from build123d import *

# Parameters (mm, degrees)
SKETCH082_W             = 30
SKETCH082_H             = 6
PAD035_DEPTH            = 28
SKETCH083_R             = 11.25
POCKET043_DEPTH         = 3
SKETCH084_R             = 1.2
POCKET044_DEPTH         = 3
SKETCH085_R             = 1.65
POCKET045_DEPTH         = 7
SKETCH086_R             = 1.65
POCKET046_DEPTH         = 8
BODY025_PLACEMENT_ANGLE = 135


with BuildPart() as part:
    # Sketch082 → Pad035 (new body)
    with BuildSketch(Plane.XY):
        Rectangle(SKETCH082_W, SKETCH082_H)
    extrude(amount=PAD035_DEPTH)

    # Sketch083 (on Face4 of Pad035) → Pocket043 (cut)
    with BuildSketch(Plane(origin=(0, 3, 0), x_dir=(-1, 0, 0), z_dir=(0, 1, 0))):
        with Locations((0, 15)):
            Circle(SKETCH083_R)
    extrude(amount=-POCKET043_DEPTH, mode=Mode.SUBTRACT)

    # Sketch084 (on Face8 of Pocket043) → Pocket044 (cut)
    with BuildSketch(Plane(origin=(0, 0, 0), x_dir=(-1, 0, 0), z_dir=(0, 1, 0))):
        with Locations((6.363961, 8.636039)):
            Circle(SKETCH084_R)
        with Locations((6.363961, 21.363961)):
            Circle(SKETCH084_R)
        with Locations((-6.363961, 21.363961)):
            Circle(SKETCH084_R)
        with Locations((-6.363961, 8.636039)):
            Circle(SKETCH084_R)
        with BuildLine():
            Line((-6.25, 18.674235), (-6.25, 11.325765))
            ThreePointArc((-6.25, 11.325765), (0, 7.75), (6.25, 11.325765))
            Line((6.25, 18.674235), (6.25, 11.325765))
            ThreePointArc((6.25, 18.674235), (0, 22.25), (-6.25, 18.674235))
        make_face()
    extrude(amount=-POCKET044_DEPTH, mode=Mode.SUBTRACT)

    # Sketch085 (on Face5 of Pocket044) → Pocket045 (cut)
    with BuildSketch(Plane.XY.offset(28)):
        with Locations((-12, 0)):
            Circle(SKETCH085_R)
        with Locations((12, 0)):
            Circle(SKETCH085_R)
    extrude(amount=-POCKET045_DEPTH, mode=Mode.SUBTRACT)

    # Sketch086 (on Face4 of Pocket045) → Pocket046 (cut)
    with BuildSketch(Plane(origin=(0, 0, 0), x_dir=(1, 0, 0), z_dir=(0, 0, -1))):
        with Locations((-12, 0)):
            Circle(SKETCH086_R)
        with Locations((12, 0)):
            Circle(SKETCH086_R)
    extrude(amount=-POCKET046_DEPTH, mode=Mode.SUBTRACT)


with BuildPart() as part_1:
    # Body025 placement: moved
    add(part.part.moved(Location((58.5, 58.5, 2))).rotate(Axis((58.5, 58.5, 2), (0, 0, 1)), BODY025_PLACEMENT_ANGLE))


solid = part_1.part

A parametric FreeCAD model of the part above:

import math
import FreeCAD as App
import Part
import Sketcher

V = App.Vector

doc = App.newDocument("Part")
params = doc.addObject("Spreadsheet::Sheet", "Params")
for row, (alias, value) in enumerate([
    ("sketch1_width", "30 mm"),
    ("sketch1_height", "6 mm"),
    ("pad1_length", "28 mm"),
    ("sketch2_diameter", "22.5 mm"),
    ("pocket1_length", "3 mm"),
    ("sketch3_diameter", "2.4 mm"),
    ("sketch3_radius", "7.25 mm"),
    ("pocket2_length", "3 mm"),
    ("sketch4_diameter", "3.3 mm"),
    ("pocket3_length", "7 mm"),
    ("sketch5_diameter", "3.3 mm"),
    ("pocket4_length", "8 mm"),
], start=1):
    params.set(f"A{row}", alias)
    params.set(f"B{row}", "=" + value)
    params.setAlias(f"B{row}", alias)

body = doc.addObject("PartDesign::Body", "Body")

sketch1 = body.newObject("Sketcher::SketchObject", "Sketch")
sketch1.AttachmentSupport = (doc.getObject("XY_Plane"), [""])
sketch1.MapMode = "FlatFace"
sketch1.addGeometry([
    Part.LineSegment(V(-15, 3, 0), V(-15, -3, 0)),
    Part.LineSegment(V(-15, -3, 0), V(15, -3, 0)),
    Part.LineSegment(V(15, -3, 0), V(15, 3, 0)),
    Part.LineSegment(V(15, 3, 0), V(-15, 3, 0)),
], False)
sketch1.addConstraint([
    Sketcher.Constraint("Coincident", 0, 2, 1, 1),
    Sketcher.Constraint("Coincident", 1, 2, 2, 1),
    Sketcher.Constraint("Coincident", 2, 2, 3, 1),
    Sketcher.Constraint("Coincident", 3, 2, 0, 1),
    Sketcher.Constraint("Vertical", 0),
    Sketcher.Constraint("Horizontal", 1),
    Sketcher.Constraint("Vertical", 2),
    Sketcher.Constraint("Horizontal", 3),
    Sketcher.Constraint("Symmetric", 0, 2, 2, 2, -1, 1),
    Sketcher.Constraint("DistanceX", 1, 1, 1, 2, 30.0),
    Sketcher.Constraint("DistanceY", 0, 2, 0, 1, 6.0),
])
sketch1.setExpression("Constraints[9]", "Params.sketch1_width")
sketch1.setExpression("Constraints[10]", "Params.sketch1_height")
pad1 = body.newObject("PartDesign::Pad", "Pad")
pad1.Profile = sketch1
pad1.setExpression("Length", "Params.pad1_length")

sketch2 = body.newObject("Sketcher::SketchObject", "Sketch001")
sketch2.AttachmentSupport = (doc.getObject("XZ_Plane"), [""])
sketch2.MapMode = "FlatFace"
sketch2.AttachmentOffset = App.Placement(V(0, 0, -3), App.Rotation())
sketch2.addGeometry(Part.Circle(V(0, 15, 0), V(0, 0, 1), 11), False)
sketch2.addConstraint([
    Sketcher.Constraint("PointOnObject", 0, 3, -2),
    Sketcher.Constraint("Diameter", 0, 22.5),
    Sketcher.Constraint("DistanceY", -1, 1, 0, 3, 15.0),
])
sketch2.setExpression("Constraints[1]", "Params.sketch2_diameter")
pocket1 = body.newObject("PartDesign::Pocket", "Pocket")
pocket1.Profile = sketch2
pocket1.setExpression("Length", "Params.pocket1_length")
pocket1.Reversed = True

sketch3 = body.newObject("Sketcher::SketchObject", "Sketch002")
sketch3.AttachmentSupport = (doc.getObject("XZ_Plane"), [""])
sketch3.MapMode = "FlatFace"
sketch3.addGeometry([
    Part.Circle(V(-6.4, 8.6, 0), V(0, 0, 1), 1.2),
    Part.Circle(V(-6.4, 21.4, 0), V(0, 0, 1), 1.2),
    Part.Circle(V(6.4, 21.4, 0), V(0, 0, 1), 1.2),
    Part.Circle(V(6.4, 8.6, 0), V(0, 0, 1), 1.2),
    Part.LineSegment(V(6.2, 18.7, 0), V(6.2, 11.3, 0)),
    Part.ArcOfCircle(Part.Circle(V(0, 15, 0), V(0, 0, 1), 7.3), math.radians(-150), math.radians(-30)),
    Part.LineSegment(V(-6.2, 11.3, 0), V(-6.2, 18.7, 0)),
    Part.ArcOfCircle(Part.Circle(V(0, 15, 0), V(0, 0, 1), 7.3), math.radians(30), math.radians(150)),
], False)
sketch3.addConstraint([
    Sketcher.Constraint("Coincident", 4, 2, 5, 2),
    Sketcher.Constraint("Coincident", 5, 1, 6, 1),
    Sketcher.Constraint("Coincident", 6, 2, 7, 2),
    Sketcher.Constraint("Coincident", 7, 1, 4, 1),
    Sketcher.Constraint("Vertical", 4),
    Sketcher.Constraint("Vertical", 6),
    Sketcher.Constraint("Coincident", 7, 3, 5, 3),
    Sketcher.Constraint("Equal", 0, 1),
    Sketcher.Constraint("Equal", 1, 2),
    Sketcher.Constraint("Equal", 2, 3),
    Sketcher.Constraint("Equal", 5, 7),
    Sketcher.Constraint("Symmetric", 1, 3, 2, 3, -2),
    Sketcher.Constraint("Symmetric", 0, 3, 3, 3, -2),
    Sketcher.Constraint("Symmetric", 4, 2, 5, 1, -2),
    Sketcher.Constraint("Vertical", 0, 3, 1, 3),
    Sketcher.Constraint("Diameter", 0, 2.4),
    Sketcher.Constraint("Radius", 5, 7.25),
    Sketcher.Constraint("DistanceY", -1, 1, 5, 3, 15.0),
    Sketcher.Constraint("DistanceX", 5, 1, 4, 2, 12.5),
    Sketcher.Constraint("DistanceX", 0, 3, -1, 1, 6.363961),
    Sketcher.Constraint("DistanceY", -1, 1, 0, 3, 8.636039),
    Sketcher.Constraint("DistanceY", -1, 1, 1, 3, 21.363961),
])
sketch3.setExpression("Constraints[15]", "Params.sketch3_diameter")
sketch3.setExpression("Constraints[16]", "Params.sketch3_radius")
pocket2 = body.newObject("PartDesign::Pocket", "Pocket001")
pocket2.Profile = sketch3
pocket2.setExpression("Length", "Params.pocket2_length")
pocket2.Reversed = True

sketch4 = body.newObject("Sketcher::SketchObject", "Sketch003")
sketch4.AttachmentSupport = (doc.getObject("XY_Plane"), [""])
sketch4.MapMode = "FlatFace"
sketch4.AttachmentOffset = App.Placement(V(0, 0, 28), App.Rotation())
sketch4.addGeometry([
    Part.Circle(V(-12, 0, 0), V(0, 0, 1), 1.6),
    Part.Circle(V(12, 0, 0), V(0, 0, 1), 1.6),
], False)
sketch4.addConstraint([
    Sketcher.Constraint("Equal", 0, 1),
    Sketcher.Constraint("Symmetric", 0, 3, 1, 3, -1, 1),
    Sketcher.Constraint("PointOnObject", 0, 3, -1),
    Sketcher.Constraint("Diameter", 0, 3.3),
    Sketcher.Constraint("DistanceX", 0, 3, -1, 1, 12.0),
])
sketch4.setExpression("Constraints[3]", "Params.sketch4_diameter")
pocket3 = body.newObject("PartDesign::Pocket", "Pocket002")
pocket3.Profile = sketch4
pocket3.setExpression("Length", "Params.pocket3_length")

sketch5 = body.newObject("Sketcher::SketchObject", "Sketch004")
sketch5.AttachmentSupport = (doc.getObject("XY_Plane"), [""])
sketch5.MapMode = "FlatFace"
sketch5.addGeometry([
    Part.Circle(V(-12, 0, 0), V(0, 0, 1), 1.6),
    Part.Circle(V(12, 0, 0), V(0, 0, 1), 1.6),
], False)
sketch5.addConstraint([
    Sketcher.Constraint("Equal", 0, 1),
    Sketcher.Constraint("Symmetric", 0, 3, 1, 3, -1, 1),
    Sketcher.Constraint("PointOnObject", 0, 3, -1),
    Sketcher.Constraint("Diameter", 0, 3.3),
    Sketcher.Constraint("DistanceX", 0, 3, -1, 1, 12.0),
])
sketch5.setExpression("Constraints[3]", "Params.sketch5_diameter")
pocket4 = body.newObject("PartDesign::Pocket", "Pocket003")
pocket4.Profile = sketch5
pocket4.setExpression("Length", "Params.pocket4_length")
pocket4.Reversed = True
body2 = doc.addObject("PartDesign::Body", "Body001")
doc.recompute()

body.Placement = App.Placement(V(58.5, 58.5, 2), App.Rotation(V(0, 0, 1), 135))
boolean = body2.newObject("PartDesign::Boolean", "Boolean")
boolean.Type = "Fuse"
boolean.addObjects([body])

doc.recompute()
